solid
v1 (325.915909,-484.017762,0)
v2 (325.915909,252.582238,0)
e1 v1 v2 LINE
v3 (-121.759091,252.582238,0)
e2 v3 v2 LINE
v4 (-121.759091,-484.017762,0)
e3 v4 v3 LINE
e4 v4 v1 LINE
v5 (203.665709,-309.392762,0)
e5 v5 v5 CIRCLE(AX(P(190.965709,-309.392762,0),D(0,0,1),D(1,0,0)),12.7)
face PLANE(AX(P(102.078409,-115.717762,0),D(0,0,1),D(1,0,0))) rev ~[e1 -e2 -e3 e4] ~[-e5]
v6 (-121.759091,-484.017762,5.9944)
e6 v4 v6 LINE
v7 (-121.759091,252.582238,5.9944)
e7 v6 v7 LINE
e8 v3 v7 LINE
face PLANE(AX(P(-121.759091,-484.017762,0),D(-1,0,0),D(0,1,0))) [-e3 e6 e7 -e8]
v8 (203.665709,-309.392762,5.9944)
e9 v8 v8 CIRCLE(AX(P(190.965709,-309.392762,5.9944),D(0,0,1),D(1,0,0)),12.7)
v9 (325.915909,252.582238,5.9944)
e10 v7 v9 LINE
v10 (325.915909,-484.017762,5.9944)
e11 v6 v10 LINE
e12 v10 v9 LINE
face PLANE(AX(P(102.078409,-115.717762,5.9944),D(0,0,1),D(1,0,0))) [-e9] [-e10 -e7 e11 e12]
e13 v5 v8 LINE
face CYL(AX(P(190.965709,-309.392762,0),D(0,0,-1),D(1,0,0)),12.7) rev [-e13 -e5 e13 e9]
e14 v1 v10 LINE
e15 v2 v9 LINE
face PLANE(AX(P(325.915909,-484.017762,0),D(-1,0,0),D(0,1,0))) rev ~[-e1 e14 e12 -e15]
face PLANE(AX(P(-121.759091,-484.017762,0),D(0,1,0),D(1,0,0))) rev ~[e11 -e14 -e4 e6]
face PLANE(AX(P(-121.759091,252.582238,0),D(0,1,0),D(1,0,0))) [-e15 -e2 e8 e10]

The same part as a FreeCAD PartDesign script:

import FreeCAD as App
import Part
import Sketcher

V = App.Vector
Q = App.Units.Quantity

doc = App.newDocument("Part")
body = doc.addObject("PartDesign::Body", "Body")

sketch1 = body.newObject("Sketcher::SketchObject", "Sketch")
sketch1.AttachmentSupport = (doc.getObject("XY_Plane"), [""])
sketch1.MapMode = "FlatFace"
sketch1.addGeometry(Part.LineSegment(V(-121.759091, 252.582238, 0), V(-121.759091, -484.017762, 0)), False)
sketch1.addGeometry(Part.LineSegment(V(-121.759091, -484.017762, 0), V(325.915909, -484.017762, 0)), False)
sketch1.addGeometry(Part.LineSegment(V(325.915909, -484.017762, 0), V(325.915909, 252.582238, 0)), False)
sketch1.addGeometry(Part.LineSegment(V(325.915909, 252.582238, 0), V(-121.759091, 252.582238, 0)), False)
sketch1.addGeometry(Part.Circle(V(190.965709, -309.392762, 0), V(0, 0, 1), 12.7), False)
sketch1.addConstraint(Sketcher.Constraint("Coincident", 0, 2, 1, 1))
sketch1.addConstraint(Sketcher.Constraint("Coincident", 1, 2, 2, 1))
sketch1.addConstraint(Sketcher.Constraint("Coincident", 2, 2, 3, 1))
sketch1.addConstraint(Sketcher.Constraint("Coincident", 3, 2, 0, 1))
sketch1.addConstraint(Sketcher.Constraint("Vertical", 0))
sketch1.addConstraint(Sketcher.Constraint("Horizontal", 1))
sketch1.addConstraint(Sketcher.Constraint("Vertical", 2))
sketch1.addConstraint(Sketcher.Constraint("Horizontal", 3))
sketch1.addConstraint(Sketcher.Constraint("Diameter", 4, Q("1 in")))
sketch1.addConstraint(Sketcher.Constraint("DistanceY", 0, 2, 0, 1, Q("29 in")))
sketch1.addConstraint(Sketcher.Constraint("DistanceX", 1, 1, 1, 2, Q("17.625 in")))
sketch1.addConstraint(Sketcher.Constraint("DistanceX", 0, 2, 4, 3, Q("12.312 in")))
sketch1.addConstraint(Sketcher.Constraint("DistanceY", 0, 2, 4, 3, Q("6.875 in")))
sketch1.addConstraint(Sketcher.Constraint("DistanceX", -1, 1, 4, 3, Q("190.965709 mm")))
sketch1.addConstraint(Sketcher.Constraint("DistanceY", 4, 3, -1, 1, Q("309.392762 mm")))
pad1 = body.newObject("PartDesign::Pad", "Pad")
pad1.Profile = sketch1
pad1.Length = Q("0.236 in")

doc.recompute()
